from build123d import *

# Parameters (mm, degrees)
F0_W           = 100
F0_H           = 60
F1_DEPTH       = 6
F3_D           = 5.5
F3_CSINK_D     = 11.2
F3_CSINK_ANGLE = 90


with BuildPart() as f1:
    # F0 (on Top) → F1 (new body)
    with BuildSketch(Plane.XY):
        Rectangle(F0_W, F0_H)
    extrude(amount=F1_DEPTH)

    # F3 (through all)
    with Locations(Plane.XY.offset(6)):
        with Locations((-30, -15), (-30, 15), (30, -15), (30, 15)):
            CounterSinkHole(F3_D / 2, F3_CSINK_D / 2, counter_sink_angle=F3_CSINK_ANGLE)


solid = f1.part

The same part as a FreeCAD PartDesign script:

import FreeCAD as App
import Part
import Sketcher
Q = App.Units.Quantity


def add_polygon(sketch, points):
    """Adds a closed chain of lines whose ends are joined by coincident constraints."""
    first, n = sketch.GeometryCount, len(points)
    for a, b in zip(points, points[1:] + points[:1]):
        sketch.addGeometry(Part.LineSegment(App.Vector(*a, 0), App.Vector(*b, 0)), False)
    for i in range(n):
        sketch.addConstraint(Sketcher.Constraint("Coincident", first + i, 2, first + (i + 1) % n, 1))

doc = App.newDocument("Part")
body = doc.addObject("PartDesign::Body", "Body")

sketch1 = body.newObject("Sketcher::SketchObject", "Sketch")
sketch1.AttachmentSupport = (doc.getObject("XY_Plane"), [""])
sketch1.MapMode = "FlatFace"
add_polygon(sketch1, [(-50, 30), (-50, -30), (50, -30), (50, 30)])
sketch1.addConstraint([
    Sketcher.Constraint("Vertical", 0),
    Sketcher.Constraint("Horizontal", 1),
    Sketcher.Constraint("Vertical", 2),
    Sketcher.Constraint("Horizontal", 3),
    Sketcher.Constraint("Symmetric", 0, 2, 2, 2, -1, 1),
    Sketcher.Constraint("DistanceX", 1, 1, 1, 2, Q("100 mm")),
    Sketcher.Constraint("DistanceY", 0, 2, 0, 1, Q("60 mm")),
])
pad1 = body.newObject("PartDesign::Pad", "Pad")
pad1.Profile = sketch1
pad1.Length = 6

sketch2 = body.newObject("Sketcher::SketchObject", "Sketch001")
sketch2.AttachmentSupport = (doc.getObject("XY_Plane"), [""])
sketch2.MapMode = "FlatFace"
sketch2.AttachmentOffset = App.Placement(App.Vector(0, 0, 6), App.Rotation())
sketch2.addGeometry([
    Part.Circle(App.Vector(-30, -15, 0), App.Vector(0, 0, 1), 2.8),
    Part.Circle(App.Vector(-30, 15, 0), App.Vector(0, 0, 1), 2.8),
    Part.Circle(App.Vector(30, -15, 0), App.Vector(0, 0, 1), 2.8),
    Part.Circle(App.Vector(30, 15, 0), App.Vector(0, 0, 1), 2.8),
], False)
sketch2.addConstraint([
    Sketcher.Constraint("Equal", 0, 1),
    Sketcher.Constraint("Equal", 1, 2),
    Sketcher.Constraint("Equal", 2, 3),
    Sketcher.Constraint("Symmetric", 1, 3, 2, 3, -1, 1),
    Sketcher.Constraint("Symmetric", 0, 3, 3, 3, -1, 1),
    Sketcher.Constraint("Symmetric", 0, 3, 2, 3, -2),
    Sketcher.Constraint("Diameter", 0, Q("5.5 mm")),
    Sketcher.Constraint("DistanceX", 0, 3, -1, 1, Q("30 mm")),
    Sketcher.Constraint("DistanceY", 0, 3, -1, 1, Q("15 mm")),
])
doc.recompute()
hole = body.newObject("PartDesign::Hole", "Hole")
hole.Profile = sketch2
hole.ThreadType = "None"
hole.Diameter = 5.5
hole.DepthType = "ThroughAll"
hole.HoleCutType = "Countersink"
hole.HoleCutDiameter = 11.2
hole.HoleCutCountersinkAngle = 90

doc.recompute()
